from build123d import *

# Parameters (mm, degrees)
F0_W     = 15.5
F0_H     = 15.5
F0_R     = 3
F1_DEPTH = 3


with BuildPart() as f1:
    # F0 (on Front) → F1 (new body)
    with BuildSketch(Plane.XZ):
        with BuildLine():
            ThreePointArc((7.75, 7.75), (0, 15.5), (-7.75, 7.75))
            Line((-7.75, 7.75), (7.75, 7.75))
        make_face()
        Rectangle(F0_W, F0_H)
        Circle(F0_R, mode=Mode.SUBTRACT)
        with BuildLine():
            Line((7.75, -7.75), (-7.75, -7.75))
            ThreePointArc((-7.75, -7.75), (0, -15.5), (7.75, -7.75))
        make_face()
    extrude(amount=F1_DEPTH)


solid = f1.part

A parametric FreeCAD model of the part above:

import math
import FreeCAD as App
import Part
import Sketcher

V = App.Vector

doc = App.newDocument("Part")
body = doc.addObject("PartDesign::Body", "Body")

sketch1 = doc.addObject("Sketcher::SketchObject", "Sketch")
body.addObject(sketch1)
sketch1.AttachmentSupport = (doc.XZ_Plane, [""])
sketch1.MapMode = "FlatFace"
sketch1.addGeometry([
    Part.ArcOfCircle(Part.Circle(V(0, 7.75, 0), V(0, 0, 1), 7.75), math.radians(0), math.radians(180)),
    Part.LineSegment(V(-7.75, 7.75, 0), V(-7.75, -7.75, 0)),
    Part.ArcOfCircle(Part.Circle(V(0, -7.75, 0), V(0, 0, 1), 7.75), math.radians(180), math.radians(360)),
    Part.LineSegment(V(7.75, -7.75, 0), V(7.75, 7.75, 0)),
    Part.Circle(V(0, 0, 0), V(0, 0, 1), 3),
], False)
sketch1.addConstraint([
    Sketcher.Constraint("Tangent", 0, 2, 1, 1),
    Sketcher.Constraint("Tangent", 1, 2, 2, 1),
    Sketcher.Constraint("Tangent", 2, 2, 3, 1),
    Sketcher.Constraint("Tangent", 3, 2, 0, 1),
    Sketcher.Constraint("Vertical", 1),
    Sketcher.Constraint("Vertical", 3),
    Sketcher.Constraint("Coincident", 4, 3, -1, 1),
    Sketcher.Constraint("Symmetric", 0, 3, 2, 3, -1, 1),
    Sketcher.Constraint("Diameter", 4, 6.0),
    Sketcher.Constraint("Radius", 0, 7.75),
    Sketcher.Constraint("DistanceY", 1, 2, 1, 1, 15.5),
])
pad1 = doc.addObject("PartDesign::Pad", "Pad")
body.addObject(pad1)
pad1.Profile = sketch1
pad1.Length = 3

doc.recompute()
